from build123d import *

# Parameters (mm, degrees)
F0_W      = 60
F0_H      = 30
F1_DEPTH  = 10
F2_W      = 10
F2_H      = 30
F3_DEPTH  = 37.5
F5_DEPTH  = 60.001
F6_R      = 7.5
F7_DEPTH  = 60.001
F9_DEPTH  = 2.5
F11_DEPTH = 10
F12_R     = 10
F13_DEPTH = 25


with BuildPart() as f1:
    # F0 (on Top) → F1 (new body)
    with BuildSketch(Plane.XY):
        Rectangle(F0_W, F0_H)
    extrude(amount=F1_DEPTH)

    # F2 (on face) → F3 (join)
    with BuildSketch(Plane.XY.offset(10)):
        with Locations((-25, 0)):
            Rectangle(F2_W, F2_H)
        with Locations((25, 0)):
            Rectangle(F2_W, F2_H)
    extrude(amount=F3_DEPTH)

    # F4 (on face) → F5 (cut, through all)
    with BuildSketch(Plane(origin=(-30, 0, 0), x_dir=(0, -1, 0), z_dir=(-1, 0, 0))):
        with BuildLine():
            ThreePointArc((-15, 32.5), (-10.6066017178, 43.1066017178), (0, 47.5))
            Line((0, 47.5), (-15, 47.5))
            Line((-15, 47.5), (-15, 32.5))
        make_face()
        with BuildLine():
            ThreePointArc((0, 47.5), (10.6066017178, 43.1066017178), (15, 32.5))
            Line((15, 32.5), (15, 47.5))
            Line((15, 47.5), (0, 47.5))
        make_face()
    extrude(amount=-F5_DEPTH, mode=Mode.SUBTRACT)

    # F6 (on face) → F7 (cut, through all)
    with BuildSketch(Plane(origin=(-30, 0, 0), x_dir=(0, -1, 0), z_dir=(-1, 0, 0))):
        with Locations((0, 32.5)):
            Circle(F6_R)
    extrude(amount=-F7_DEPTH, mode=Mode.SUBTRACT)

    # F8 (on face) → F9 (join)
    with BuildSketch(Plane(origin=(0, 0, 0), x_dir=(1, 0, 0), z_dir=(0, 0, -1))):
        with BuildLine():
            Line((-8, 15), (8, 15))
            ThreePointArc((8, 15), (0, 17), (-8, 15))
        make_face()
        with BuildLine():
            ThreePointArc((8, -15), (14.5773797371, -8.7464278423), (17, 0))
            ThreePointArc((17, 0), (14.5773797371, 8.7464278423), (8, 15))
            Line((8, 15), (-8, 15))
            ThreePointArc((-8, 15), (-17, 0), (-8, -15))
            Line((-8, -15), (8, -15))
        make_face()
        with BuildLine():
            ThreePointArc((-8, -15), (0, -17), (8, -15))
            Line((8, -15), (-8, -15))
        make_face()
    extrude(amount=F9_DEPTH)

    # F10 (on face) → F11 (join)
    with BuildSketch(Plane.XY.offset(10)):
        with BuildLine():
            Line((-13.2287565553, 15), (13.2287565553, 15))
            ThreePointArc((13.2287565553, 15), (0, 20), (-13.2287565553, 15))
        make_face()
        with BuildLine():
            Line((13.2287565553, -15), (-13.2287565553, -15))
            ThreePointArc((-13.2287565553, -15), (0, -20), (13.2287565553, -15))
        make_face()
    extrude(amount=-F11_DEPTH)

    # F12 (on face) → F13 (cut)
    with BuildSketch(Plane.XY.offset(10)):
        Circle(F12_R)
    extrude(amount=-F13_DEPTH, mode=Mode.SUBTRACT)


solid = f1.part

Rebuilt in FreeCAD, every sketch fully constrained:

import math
import FreeCAD as App
import Part
import Sketcher

V = App.Vector


def add_polygon(sketch, points):
    """Adds a closed chain of lines whose ends are joined by coincident constraints."""
    first, n = sketch.GeometryCount, len(points)
    for a, b in zip(points, points[1:] + points[:1]):
        sketch.addGeometry(Part.LineSegment(App.Vector(*a, 0), App.Vector(*b, 0)), False)
    for i in range(n):
        sketch.addConstraint(Sketcher.Constraint("Coincident", first + i, 2, first + (i + 1) % n, 1))

doc = App.newDocument("Part")
body = doc.addObject("PartDesign::Body", "Body")

# Sketch on XY plane
sketch1 = body.newObject("Sketcher::SketchObject", "Sketch")
sketch1.AttachmentSupport = (doc.getObject("XY_Plane"), [""])
sketch1.MapMode = "FlatFace"
add_polygon(sketch1, [(-30, 15), (-30, -15), (30, -15), (30, 15)])  # lines 0-3
sketch1.addConstraint([
    Sketcher.Constraint("Vertical", 0),
    Sketcher.Constraint("Horizontal", 1),
    Sketcher.Constraint("Vertical", 2),
    Sketcher.Constraint("Horizontal", 3),
    Sketcher.Constraint("Symmetric", 0, 2, 2, 2, -1, 1),
    Sketcher.Constraint("DistanceX", 1, 1, 1, 2, 60.0),
    Sketcher.Constraint("DistanceY", 0, 2, 0, 1, 30.0),
])
pad1 = body.newObject("PartDesign::Pad", "Pad")
pad1.Profile = sketch1
pad1.Length = 10

# Sketch on XY plane
sketch2 = body.newObject("Sketcher::SketchObject", "Sketch001")
sketch2.AttachmentSupport = (doc.getObject("XY_Plane"), [""])
sketch2.MapMode = "FlatFace"
sketch2.AttachmentOffset = App.Placement(V(0, 0, 10), App.Rotation())
add_polygon(sketch2, [(-30, 15), (-30, -15), (-20, -15), (-20, 15)])  # lines 0-3
add_polygon(sketch2, [(20, 15), (20, -15), (30, -15), (30, 15)])  # lines 4-7
sketch2.addConstraint([
    Sketcher.Constraint("Vertical", 0),
    Sketcher.Constraint("Horizontal", 1),
    Sketcher.Constraint("Vertical", 2),
    Sketcher.Constraint("Horizontal", 3),
    Sketcher.Constraint("Vertical", 4),
    Sketcher.Constraint("Horizontal", 5),
    Sketcher.Constraint("Vertical", 6),
    Sketcher.Constraint("Horizontal", 7),
    Sketcher.Constraint("Symmetric", 2, 2, 4, 2, -1, 1),
    Sketcher.Constraint("Symmetric", 0, 2, 6, 2, -1, 1),
    Sketcher.Constraint("Horizontal", 1, 2, 4, 2),
    Sketcher.Constraint("DistanceX", 1, 1, 1, 2, 10.0),
    Sketcher.Constraint("DistanceY", 0, 2, 0, 1, 30.0),
    Sketcher.Constraint("DistanceX", 0, 2, -1, 1, 30.0),
])
pad2 = body.newObject("PartDesign::Pad", "Pad001")
pad2.Profile = sketch2
pad2.Length = 37.5

# Sketch on YZ plane
sketch3 = body.newObject("Sketcher::SketchObject", "Sketch002")
sketch3.AttachmentSupport = (doc.getObject("YZ_Plane"), [""])
sketch3.MapMode = "FlatFace"
sketch3.AttachmentOffset = App.Placement(V(0, 0, -30), App.Rotation())
sketch3.addGeometry([
    Part.ArcOfCircle(Part.Circle(V(0, 32, 0), V(0, 0, 1), 15), math.radians(0), math.radians(90)),  # 0
    Part.LineSegment(V(0, 48, 0), V(15, 48, 0)),  # 1
    Part.LineSegment(V(15, 48, 0), V(15, 32, 0)),  # 2
    Part.ArcOfCircle(Part.Circle(V(0, 32, 0), V(0, 0, 1), 15), math.radians(90), math.radians(180)),  # 3
    Part.LineSegment(V(-15, 32, 0), V(-15, 48, 0)),  # 4
    Part.LineSegment(V(-15, 48, 0), V(0, 48, 0)),  # 5
], False)
sketch3.addConstraint([
    Sketcher.Constraint("Tangent", 0, 2, 1, 1),
    Sketcher.Constraint("Coincident", 1, 2, 2, 1),
    Sketcher.Constraint("Tangent", 2, 2, 0, 1),
    Sketcher.Constraint("Tangent", 3, 2, 4, 1),
    Sketcher.Constraint("Coincident", 4, 2, 5, 1),
    Sketcher.Constraint("Tangent", 5, 2, 3, 1),
    Sketcher.Constraint("Horizontal", 1),
    Sketcher.Constraint("Vertical", 2),
    Sketcher.Constraint("Vertical", 4),
    Sketcher.Constraint("Horizontal", 5),
    Sketcher.Constraint("Coincident", 3, 3, 0, 3),
    Sketcher.Constraint("Equal", 0, 3),
    Sketcher.Constraint("PointOnObject", 0, 3, -2),
    Sketcher.Constraint("Radius", 0, 15.0),
    Sketcher.Constraint("DistanceY", -1, 1, 0, 3, 32.5),
])
pocket1 = body.newObject("PartDesign::Pocket", "Pocket")
pocket1.Profile = sketch3
pocket1.Type = "ThroughAll"
pocket1.Reversed = True

# Sketch on YZ plane
sketch4 = body.newObject("Sketcher::SketchObject", "Sketch003")
sketch4.AttachmentSupport = (doc.getObject("YZ_Plane"), [""])
sketch4.MapMode = "FlatFace"
sketch4.AttachmentOffset = App.Placement(V(0, 0, -30), App.Rotation())
sketch4.addGeometry(Part.Circle(V(0, 32, 0), V(0, 0, 1), 8), False)
sketch4.addConstraint([
    Sketcher.Constraint("PointOnObject", 0, 3, -2),
    Sketcher.Constraint("Diameter", 0, 15.0),
    Sketcher.Constraint("DistanceY", -1, 1, 0, 3, 32.5),
])
pocket2 = body.newObject("PartDesign::Pocket", "Pocket001")
pocket2.Profile = sketch4
pocket2.Type = "ThroughAll"
pocket2.Reversed = True

# Sketch on XY plane
sketch5 = body.newObject("Sketcher::SketchObject", "Sketch004")
sketch5.AttachmentSupport = (doc.getObject("XY_Plane"), [""])
sketch5.MapMode = "FlatFace"
sketch5.addGeometry([
    Part.ArcOfCircle(Part.Circle(V(0, 0, 0), V(0, 0, 1), 17), math.radians(62), math.radians(298)),
    Part.ArcOfCircle(Part.Circle(V(0, 0, 0), V(0, 0, 1), 17), math.radians(0), math.radians(62)),
    Part.ArcOfCircle(Part.Circle(V(0, 0, 0), V(0, 0, 1), 17), math.radians(-62), math.radians(0)),
], False)
sketch5.addConstraint([
    Sketcher.Constraint("Tangent", 0, 1, 1, 2),
    Sketcher.Constraint("Tangent", 1, 1, 2, 2),
    Sketcher.Constraint("Tangent", 2, 1, 0, 2),
    Sketcher.Constraint("Coincident", 0, 3, -1, 1),
    Sketcher.Constraint("PointOnObject", 1, 1, -1),
    Sketcher.Constraint("Vertical", 0, 1, 2, 1),
    Sketcher.Constraint("Radius", 0, 17.0),
    Sketcher.Constraint("DistanceX", -1, 1, 0, 1, 8.0),
])
pad3 = body.newObject("PartDesign::Pad", "Pad002")
pad3.Profile = sketch5
pad3.Length = 2.5
pad3.Reversed = True

# Sketch on XY plane
sketch6 = body.newObject("Sketcher::SketchObject", "Sketch005")
sketch6.AttachmentSupport = (doc.getObject("XY_Plane"), [""])
sketch6.MapMode = "FlatFace"
sketch6.AttachmentOffset = App.Placement(V(0, 0, 10), App.Rotation())
sketch6.addGeometry([
    Part.LineSegment(V(-13, 15, 0), V(13, 15, 0)),
    Part.ArcOfCircle(Part.Circle(V(0, 0, 0), V(0, 0, 1), 20), math.radians(49), math.radians(131)),
    Part.LineSegment(V(13, -15, 0), V(-13, -15, 0)),
    Part.ArcOfCircle(Part.Circle(V(0, 0, 0), V(0, 0, 1), 20), math.radians(-131), math.radians(-49)),
], False)
sketch6.addConstraint([
    Sketcher.Constraint("Coincident", 0, 1, 1, 2),
    Sketcher.Constraint("Coincident", 1, 1, 0, 2),
    Sketcher.Constraint("Coincident", 2, 1, 3, 2),
    Sketcher.Constraint("Coincident", 3, 1, 2, 2),
    Sketcher.Constraint("Horizontal", 0),
    Sketcher.Constraint("Horizontal", 2),
    Sketcher.Constraint("Coincident", 1, 3, -1, 1),
    Sketcher.Constraint("Coincident", 3, 3, -1, 1),
    Sketcher.Constraint("Equal", 1, 3),
    Sketcher.Constraint("Vertical", 1, 1, 2, 1),
    Sketcher.Constraint("Radius", 1, 20.0),
    Sketcher.Constraint("DistanceY", -1, 1, 0, 1, 15.0),
])
pad4 = body.newObject("PartDesign::Pad", "Pad003")
pad4.Profile = sketch6
pad4.Length = 10
pad4.Reversed = True

# Sketch on XY plane
sketch7 = body.newObject("Sketcher::SketchObject", "Sketch006")
sketch7.AttachmentSupport = (doc.getObject("XY_Plane"), [""])
sketch7.MapMode = "FlatFace"
sketch7.AttachmentOffset = App.Placement(V(0, 0, 10), App.Rotation())
sketch7.addGeometry(Part.Circle(V(0, 0, 0), V(0, 0, 1), 10), False)
sketch7.addConstraint([
    Sketcher.Constraint("Coincident", 0, 3, -1, 1),
    Sketcher.Constraint("Diameter", 0, 20.0),
])
pocket3 = body.newObject("PartDesign::Pocket", "Pocket002")
pocket3.Profile = sketch7
pocket3.Length = 25

doc.recompute()
